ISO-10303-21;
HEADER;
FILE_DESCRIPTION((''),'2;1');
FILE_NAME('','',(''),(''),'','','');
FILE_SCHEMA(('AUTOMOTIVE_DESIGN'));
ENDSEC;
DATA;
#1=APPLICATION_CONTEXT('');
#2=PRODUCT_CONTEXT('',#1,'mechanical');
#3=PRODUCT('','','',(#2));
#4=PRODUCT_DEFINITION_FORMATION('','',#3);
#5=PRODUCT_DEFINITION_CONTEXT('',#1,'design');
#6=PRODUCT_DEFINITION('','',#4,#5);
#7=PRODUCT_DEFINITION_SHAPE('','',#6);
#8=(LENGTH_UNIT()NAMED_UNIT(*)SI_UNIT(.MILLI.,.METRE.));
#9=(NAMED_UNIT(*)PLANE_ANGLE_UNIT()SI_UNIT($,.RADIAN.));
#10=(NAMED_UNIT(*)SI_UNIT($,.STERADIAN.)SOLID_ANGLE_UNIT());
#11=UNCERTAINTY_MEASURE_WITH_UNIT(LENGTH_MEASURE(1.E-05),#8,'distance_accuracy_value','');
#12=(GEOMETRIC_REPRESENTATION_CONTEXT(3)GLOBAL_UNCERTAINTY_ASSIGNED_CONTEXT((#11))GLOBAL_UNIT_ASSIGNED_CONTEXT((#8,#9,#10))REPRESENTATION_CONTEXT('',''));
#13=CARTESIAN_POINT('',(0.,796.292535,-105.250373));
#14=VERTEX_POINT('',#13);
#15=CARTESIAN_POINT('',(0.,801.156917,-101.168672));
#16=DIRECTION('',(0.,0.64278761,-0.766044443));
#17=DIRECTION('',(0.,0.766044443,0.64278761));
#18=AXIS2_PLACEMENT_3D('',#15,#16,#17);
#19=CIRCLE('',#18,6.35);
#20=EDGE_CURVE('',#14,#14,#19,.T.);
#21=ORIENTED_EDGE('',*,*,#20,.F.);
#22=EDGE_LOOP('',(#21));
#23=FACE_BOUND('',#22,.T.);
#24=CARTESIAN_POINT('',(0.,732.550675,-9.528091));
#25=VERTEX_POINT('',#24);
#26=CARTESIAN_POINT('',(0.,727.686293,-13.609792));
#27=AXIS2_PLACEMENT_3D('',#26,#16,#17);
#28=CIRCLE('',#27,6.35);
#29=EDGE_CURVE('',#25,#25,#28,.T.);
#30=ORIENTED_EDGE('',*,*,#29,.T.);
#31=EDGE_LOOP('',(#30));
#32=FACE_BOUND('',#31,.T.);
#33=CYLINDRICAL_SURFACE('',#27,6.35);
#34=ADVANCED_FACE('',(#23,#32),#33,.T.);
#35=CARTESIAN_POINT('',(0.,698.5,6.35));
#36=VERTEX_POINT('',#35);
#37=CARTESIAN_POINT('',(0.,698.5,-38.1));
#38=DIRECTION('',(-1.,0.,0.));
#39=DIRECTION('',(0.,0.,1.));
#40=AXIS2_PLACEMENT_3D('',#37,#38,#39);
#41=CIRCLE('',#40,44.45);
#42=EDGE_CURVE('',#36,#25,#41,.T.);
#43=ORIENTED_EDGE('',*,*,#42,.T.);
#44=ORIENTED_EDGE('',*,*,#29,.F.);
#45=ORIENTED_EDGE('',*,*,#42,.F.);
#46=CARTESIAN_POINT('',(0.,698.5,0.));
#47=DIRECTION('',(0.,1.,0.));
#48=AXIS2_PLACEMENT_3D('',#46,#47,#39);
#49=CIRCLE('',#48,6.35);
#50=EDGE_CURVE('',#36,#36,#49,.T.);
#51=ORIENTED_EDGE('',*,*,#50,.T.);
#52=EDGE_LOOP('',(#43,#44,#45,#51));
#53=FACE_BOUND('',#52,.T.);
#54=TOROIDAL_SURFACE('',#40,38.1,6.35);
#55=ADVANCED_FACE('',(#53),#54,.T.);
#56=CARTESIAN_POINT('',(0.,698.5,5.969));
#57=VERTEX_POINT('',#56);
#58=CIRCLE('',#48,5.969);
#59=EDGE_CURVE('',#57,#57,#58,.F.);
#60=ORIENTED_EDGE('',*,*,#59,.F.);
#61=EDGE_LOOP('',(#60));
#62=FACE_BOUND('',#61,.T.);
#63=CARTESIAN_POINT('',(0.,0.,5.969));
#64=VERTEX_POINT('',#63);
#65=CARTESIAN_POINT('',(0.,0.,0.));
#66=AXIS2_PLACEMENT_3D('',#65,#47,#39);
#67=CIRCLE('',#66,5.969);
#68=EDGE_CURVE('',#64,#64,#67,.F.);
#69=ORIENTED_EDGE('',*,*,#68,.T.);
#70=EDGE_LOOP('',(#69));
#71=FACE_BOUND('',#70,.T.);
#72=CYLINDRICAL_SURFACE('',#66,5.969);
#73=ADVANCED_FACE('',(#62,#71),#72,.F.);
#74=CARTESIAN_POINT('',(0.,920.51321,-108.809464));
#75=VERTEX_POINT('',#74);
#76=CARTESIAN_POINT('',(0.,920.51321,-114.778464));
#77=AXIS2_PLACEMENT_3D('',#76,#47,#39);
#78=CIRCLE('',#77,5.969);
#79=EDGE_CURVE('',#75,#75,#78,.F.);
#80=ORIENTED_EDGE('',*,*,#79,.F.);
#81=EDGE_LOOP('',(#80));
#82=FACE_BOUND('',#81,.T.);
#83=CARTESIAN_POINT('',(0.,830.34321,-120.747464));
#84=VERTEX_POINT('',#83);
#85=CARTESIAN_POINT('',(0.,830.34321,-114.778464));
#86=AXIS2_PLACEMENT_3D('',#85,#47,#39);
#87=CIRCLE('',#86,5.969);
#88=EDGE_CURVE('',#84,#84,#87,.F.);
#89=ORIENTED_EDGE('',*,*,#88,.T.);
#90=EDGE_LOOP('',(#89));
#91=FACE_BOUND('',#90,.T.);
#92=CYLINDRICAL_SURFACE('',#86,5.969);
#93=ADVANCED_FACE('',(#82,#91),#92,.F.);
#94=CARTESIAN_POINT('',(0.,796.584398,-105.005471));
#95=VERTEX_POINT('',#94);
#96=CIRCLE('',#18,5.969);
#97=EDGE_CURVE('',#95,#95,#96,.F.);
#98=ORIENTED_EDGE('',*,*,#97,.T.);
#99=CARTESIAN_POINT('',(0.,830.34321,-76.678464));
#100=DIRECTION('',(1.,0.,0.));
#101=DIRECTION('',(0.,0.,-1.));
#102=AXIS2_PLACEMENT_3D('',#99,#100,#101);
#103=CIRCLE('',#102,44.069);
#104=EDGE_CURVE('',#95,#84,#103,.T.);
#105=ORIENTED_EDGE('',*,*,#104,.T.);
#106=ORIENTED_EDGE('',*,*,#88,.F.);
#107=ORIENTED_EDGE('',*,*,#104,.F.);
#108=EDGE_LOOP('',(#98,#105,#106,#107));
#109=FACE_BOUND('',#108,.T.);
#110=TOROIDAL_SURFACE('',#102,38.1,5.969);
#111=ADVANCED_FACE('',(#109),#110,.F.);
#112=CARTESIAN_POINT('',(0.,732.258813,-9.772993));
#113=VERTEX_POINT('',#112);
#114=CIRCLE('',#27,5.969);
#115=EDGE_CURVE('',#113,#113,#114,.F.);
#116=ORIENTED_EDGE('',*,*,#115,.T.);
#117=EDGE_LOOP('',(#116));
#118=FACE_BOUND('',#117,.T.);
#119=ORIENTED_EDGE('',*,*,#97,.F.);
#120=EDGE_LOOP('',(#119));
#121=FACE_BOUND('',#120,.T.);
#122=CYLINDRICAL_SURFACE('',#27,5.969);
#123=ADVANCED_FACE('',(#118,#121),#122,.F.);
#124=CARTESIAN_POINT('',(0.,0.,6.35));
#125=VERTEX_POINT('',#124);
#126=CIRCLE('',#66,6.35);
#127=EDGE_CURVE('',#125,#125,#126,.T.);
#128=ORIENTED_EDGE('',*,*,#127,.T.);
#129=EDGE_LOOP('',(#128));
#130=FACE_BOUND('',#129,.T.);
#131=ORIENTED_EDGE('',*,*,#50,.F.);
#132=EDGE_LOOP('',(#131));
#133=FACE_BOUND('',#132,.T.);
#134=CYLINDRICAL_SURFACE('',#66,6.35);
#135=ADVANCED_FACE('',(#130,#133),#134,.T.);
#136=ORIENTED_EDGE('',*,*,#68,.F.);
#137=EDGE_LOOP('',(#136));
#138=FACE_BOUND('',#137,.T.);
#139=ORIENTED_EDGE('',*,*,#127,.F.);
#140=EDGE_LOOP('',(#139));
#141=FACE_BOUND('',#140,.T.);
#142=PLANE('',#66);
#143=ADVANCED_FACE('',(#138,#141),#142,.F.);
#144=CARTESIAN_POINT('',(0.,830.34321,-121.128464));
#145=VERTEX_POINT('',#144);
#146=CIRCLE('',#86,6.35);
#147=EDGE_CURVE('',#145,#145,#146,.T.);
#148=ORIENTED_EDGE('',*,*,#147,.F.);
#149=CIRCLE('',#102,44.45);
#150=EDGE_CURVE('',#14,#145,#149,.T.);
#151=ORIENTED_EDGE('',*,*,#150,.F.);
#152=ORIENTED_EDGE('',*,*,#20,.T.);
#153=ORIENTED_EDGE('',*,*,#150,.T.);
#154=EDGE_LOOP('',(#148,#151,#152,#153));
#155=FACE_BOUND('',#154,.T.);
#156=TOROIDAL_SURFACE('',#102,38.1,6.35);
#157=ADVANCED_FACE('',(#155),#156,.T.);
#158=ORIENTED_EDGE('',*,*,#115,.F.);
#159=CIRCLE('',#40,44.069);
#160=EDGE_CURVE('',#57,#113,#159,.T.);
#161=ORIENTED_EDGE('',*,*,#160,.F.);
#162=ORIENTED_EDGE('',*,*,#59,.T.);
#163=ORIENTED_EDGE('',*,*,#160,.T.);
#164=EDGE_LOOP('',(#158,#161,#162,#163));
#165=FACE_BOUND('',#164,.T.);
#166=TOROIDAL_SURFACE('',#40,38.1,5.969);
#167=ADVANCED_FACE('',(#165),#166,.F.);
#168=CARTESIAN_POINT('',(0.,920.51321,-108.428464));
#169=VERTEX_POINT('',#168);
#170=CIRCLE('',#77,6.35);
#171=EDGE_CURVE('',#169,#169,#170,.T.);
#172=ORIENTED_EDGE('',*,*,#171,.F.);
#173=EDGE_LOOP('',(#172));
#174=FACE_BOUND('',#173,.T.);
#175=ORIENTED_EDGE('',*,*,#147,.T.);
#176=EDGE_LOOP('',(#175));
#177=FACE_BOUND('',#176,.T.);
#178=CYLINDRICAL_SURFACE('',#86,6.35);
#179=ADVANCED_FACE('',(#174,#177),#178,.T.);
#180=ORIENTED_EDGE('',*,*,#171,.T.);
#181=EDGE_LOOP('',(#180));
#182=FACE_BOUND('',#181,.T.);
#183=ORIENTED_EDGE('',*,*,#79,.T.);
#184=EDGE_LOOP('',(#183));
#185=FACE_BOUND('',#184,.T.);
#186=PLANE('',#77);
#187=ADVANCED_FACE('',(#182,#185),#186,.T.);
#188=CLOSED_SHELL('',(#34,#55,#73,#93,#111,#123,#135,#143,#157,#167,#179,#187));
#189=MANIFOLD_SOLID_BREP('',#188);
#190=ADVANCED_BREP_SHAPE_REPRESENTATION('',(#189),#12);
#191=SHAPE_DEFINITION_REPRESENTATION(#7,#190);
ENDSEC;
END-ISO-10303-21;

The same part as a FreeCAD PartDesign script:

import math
import FreeCAD as App
import Part
import Sketcher
from FreeCAD import Vector
Q = App.Units.Quantity

doc = App.newDocument("Part")
body = doc.addObject("PartDesign::Body", "Body")

# Sketch on XZ plane
sketch1 = doc.addObject("Sketcher::SketchObject", "Sketch")
body.addObject(sketch1)
sketch1.AttachmentSupport = (doc.XZ_Plane, [""])
sketch1.MapMode = "FlatFace"
sketch1.addGeometry(Part.Circle(Vector(0, 0, 0), Vector(0, 0, 1), 6.35), False)
sketch1.addGeometry(Part.Circle(Vector(0, 0, 0), Vector(0, 0, 1), 5.969), False)
sketch1.addConstraint(Sketcher.Constraint("Coincident", 0, 3, -1, 1))
sketch1.addConstraint(Sketcher.Constraint("Coincident", 1, 3, -1, 1))
sketch1.addConstraint(Sketcher.Constraint("Diameter", 0, Q("0.5 in")))
sketch1.addConstraint(Sketcher.Constraint("Diameter", 1, Q("0.47 in")))

# Sketch on YZ plane
sketch2 = doc.addObject("Sketcher::SketchObject", "Sketch001")
body.addObject(sketch2)
sketch2.AttachmentSupport = (doc.YZ_Plane, [""])
sketch2.MapMode = "FlatFace"
sketch2.addGeometry(Part.LineSegment(Vector(0, 0, 0), Vector(698.5, 0, 0)), False)
sketch2.addGeometry(Part.ArcOfCircle(Part.Circle(Vector(698.5, -38.1, 0), Vector(0, 0, 1), 38.1), math.radians(40), math.radians(90)), False)
sketch2.addGeometry(Part.LineSegment(Vector(727.686293, -13.609792, 0), Vector(801.156917, -101.168672, 0)), False)
sketch2.addGeometry(Part.ArcOfCircle(Part.Circle(Vector(830.34321, -76.678464, 0), Vector(0, 0, 1), 38.1), math.radians(-140), math.radians(-90)), False)
sketch2.addGeometry(Part.LineSegment(Vector(830.34321, -114.778464, 0), Vector(920.51321, -114.778464, 0)), False)
sketch2.addConstraint(Sketcher.Constraint("Tangent", 0, 2, 1, 2))
sketch2.addConstraint(Sketcher.Constraint("Tangent", 1, 1, 2, 1))
sketch2.addConstraint(Sketcher.Constraint("Tangent", 2, 2, 3, 1))
sketch2.addConstraint(Sketcher.Constraint("Tangent", 3, 2, 4, 1))
sketch2.addConstraint(Sketcher.Constraint("Horizontal", 0))
sketch2.addConstraint(Sketcher.Constraint("Horizontal", 4))
sketch2.addConstraint(Sketcher.Constraint("Coincident", 0, 1, -1, 1))
sketch2.addConstraint(Sketcher.Constraint("Equal", 1, 3))
sketch2.addConstraint(Sketcher.Constraint("Radius", 1, Q("1.5 in")))
sketch2.addConstraint(Sketcher.Constraint("DistanceX", 0, 1, 0, 2, Q("27.5 in")))
sketch2.addConstraint(Sketcher.Constraint("Angle", 2, Q("-50 deg")))
sketch2.addConstraint(Sketcher.Constraint("Distance", 2, Q("4.5 in")))
sketch2.addConstraint(Sketcher.Constraint("DistanceX", 4, 1, 4, 2, Q("3.55 in")))
doc.recompute()

additivepipe = doc.addObject("PartDesign::AdditivePipe", "AdditivePipe")
body.addObject(additivepipe)
additivepipe.Profile = sketch1
additivepipe.Spine = (sketch2, ["Edge1", "Edge2", "Edge3", "Edge4", "Edge5"])

doc.recompute()
